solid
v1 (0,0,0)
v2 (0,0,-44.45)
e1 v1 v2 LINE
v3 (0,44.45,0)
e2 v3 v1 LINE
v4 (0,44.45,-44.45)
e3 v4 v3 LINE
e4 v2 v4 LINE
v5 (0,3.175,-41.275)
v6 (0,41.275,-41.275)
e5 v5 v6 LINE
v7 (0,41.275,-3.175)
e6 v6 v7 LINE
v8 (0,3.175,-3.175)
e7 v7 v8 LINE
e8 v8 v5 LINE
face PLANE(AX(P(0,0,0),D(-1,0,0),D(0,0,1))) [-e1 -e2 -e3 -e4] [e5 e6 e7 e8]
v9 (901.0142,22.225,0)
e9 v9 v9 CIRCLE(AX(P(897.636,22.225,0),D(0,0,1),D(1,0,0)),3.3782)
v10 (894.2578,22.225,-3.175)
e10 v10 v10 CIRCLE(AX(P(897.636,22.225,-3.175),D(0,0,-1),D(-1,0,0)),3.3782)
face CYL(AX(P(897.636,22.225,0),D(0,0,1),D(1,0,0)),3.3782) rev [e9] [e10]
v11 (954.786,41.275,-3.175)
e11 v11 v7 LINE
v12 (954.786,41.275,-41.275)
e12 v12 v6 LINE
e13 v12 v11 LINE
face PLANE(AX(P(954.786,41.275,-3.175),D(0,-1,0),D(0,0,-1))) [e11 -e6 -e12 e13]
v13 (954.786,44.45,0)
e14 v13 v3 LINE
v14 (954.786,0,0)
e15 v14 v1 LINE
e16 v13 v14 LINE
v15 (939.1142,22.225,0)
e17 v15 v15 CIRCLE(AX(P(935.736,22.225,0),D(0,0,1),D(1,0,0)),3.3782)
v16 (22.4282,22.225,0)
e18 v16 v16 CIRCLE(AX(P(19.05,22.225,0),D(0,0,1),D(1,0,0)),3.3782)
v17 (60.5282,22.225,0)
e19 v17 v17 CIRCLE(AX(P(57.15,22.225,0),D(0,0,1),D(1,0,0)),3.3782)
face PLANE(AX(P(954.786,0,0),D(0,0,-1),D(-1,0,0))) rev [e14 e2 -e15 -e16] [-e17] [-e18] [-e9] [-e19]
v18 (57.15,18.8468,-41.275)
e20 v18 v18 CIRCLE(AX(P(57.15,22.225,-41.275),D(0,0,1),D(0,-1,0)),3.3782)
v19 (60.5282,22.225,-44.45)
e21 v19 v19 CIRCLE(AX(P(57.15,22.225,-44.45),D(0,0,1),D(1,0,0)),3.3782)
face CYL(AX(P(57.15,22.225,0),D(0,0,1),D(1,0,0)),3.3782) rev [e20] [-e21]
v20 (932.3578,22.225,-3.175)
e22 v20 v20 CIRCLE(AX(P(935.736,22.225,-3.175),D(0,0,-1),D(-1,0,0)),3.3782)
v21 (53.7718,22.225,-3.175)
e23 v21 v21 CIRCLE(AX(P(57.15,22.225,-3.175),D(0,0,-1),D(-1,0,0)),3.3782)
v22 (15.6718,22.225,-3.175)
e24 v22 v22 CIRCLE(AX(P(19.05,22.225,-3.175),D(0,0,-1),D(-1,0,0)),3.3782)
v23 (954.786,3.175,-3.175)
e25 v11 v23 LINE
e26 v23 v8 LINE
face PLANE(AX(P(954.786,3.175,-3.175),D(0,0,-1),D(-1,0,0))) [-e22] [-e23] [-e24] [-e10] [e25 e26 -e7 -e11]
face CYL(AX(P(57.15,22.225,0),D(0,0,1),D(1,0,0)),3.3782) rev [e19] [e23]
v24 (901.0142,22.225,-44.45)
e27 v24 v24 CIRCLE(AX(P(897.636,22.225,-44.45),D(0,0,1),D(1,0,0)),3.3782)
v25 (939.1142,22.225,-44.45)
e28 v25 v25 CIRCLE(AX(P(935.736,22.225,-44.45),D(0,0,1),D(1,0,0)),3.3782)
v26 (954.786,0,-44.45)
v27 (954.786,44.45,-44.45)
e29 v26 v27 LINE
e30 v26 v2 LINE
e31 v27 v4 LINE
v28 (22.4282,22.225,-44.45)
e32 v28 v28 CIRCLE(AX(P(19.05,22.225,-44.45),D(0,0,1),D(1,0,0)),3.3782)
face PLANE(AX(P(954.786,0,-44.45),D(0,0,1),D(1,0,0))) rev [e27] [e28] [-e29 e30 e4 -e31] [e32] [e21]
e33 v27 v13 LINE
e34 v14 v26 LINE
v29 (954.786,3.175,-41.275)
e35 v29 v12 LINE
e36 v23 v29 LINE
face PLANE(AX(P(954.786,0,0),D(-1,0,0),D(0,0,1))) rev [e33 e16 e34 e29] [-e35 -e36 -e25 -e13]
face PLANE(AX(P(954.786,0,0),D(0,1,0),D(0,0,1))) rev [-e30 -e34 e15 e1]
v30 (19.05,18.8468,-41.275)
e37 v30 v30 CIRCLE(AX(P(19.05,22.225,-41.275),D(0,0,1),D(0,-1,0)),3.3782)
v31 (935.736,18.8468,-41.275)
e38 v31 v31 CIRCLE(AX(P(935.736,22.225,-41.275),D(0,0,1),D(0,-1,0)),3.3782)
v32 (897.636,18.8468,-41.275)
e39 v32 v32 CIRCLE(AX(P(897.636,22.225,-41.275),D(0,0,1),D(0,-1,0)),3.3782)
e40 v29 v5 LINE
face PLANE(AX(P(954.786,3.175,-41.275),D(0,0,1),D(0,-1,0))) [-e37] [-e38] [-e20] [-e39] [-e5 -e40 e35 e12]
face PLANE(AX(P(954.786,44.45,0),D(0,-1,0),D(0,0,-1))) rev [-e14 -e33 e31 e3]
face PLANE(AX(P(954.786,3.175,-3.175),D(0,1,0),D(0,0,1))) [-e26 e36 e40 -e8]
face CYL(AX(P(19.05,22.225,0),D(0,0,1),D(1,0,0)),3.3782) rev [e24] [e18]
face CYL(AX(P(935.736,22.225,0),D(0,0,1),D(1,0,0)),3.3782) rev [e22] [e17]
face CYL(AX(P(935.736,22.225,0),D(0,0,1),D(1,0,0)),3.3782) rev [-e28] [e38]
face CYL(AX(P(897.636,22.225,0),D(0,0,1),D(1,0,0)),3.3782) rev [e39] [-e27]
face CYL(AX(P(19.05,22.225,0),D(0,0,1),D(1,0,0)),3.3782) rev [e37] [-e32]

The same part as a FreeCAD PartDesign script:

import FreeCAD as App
import Part
import Sketcher
Q = App.Units.Quantity

doc = App.newDocument("Part")
body = doc.addObject("PartDesign::Body", "Body")

sketch1 = body.newObject("Sketcher::SketchObject", "Sketch")
sketch1.AttachmentSupport = (doc.getObject("YZ_Plane"), [""])
sketch1.MapMode = "FlatFace"
sketch1.addGeometry([
    Part.LineSegment(App.Vector(44, 0, 0), App.Vector(0, 0, 0)),
    Part.LineSegment(App.Vector(0, 0, 0), App.Vector(0, -44, 0)),
    Part.LineSegment(App.Vector(0, -44, 0), App.Vector(44, -44, 0)),
    Part.LineSegment(App.Vector(44, -44, 0), App.Vector(44, 0, 0)),
    Part.LineSegment(App.Vector(3, -41, 0), App.Vector(3, -3, 0)),
    Part.LineSegment(App.Vector(3, -3, 0), App.Vector(41, -3, 0)),
    Part.LineSegment(App.Vector(41, -3, 0), App.Vector(41, -41, 0)),
    Part.LineSegment(App.Vector(41, -41, 0), App.Vector(3, -41, 0)),
], False)
sketch1.addConstraint([
    Sketcher.Constraint("Coincident", 0, 2, 1, 1),
    Sketcher.Constraint("Coincident", 1, 2, 2, 1),
    Sketcher.Constraint("Coincident", 2, 2, 3, 1),
    Sketcher.Constraint("Coincident", 3, 2, 0, 1),
    Sketcher.Constraint("Coincident", 4, 2, 5, 1),
    Sketcher.Constraint("Coincident", 5, 2, 6, 1),
    Sketcher.Constraint("Coincident", 6, 2, 7, 1),
    Sketcher.Constraint("Coincident", 7, 2, 4, 1),
    Sketcher.Constraint("Horizontal", 0),
    Sketcher.Constraint("Vertical", 1),
    Sketcher.Constraint("Horizontal", 2),
    Sketcher.Constraint("Vertical", 3),
    Sketcher.Constraint("Vertical", 4),
    Sketcher.Constraint("Horizontal", 5),
    Sketcher.Constraint("Vertical", 6),
    Sketcher.Constraint("Horizontal", 7),
    Sketcher.Constraint("Coincident", 0, 2, -1, 1),
    Sketcher.Constraint("Equal", 2, 1),
    Sketcher.Constraint("Equal", 7, 4),
    Sketcher.Constraint("DistanceX", 5, 1, 5, 2, Q("1.5 in")),
    Sketcher.Constraint("DistanceX", 0, 2, 0, 1, Q("1.75 in")),
    Sketcher.Constraint("DistanceX", -1, 1, 4, 2, Q("0.125 in")),
    Sketcher.Constraint("DistanceY", 4, 2, -1, 1, Q("0.125 in")),
])
pad1 = body.newObject("PartDesign::Pad", "Pad")
pad1.Profile = sketch1
pad1.Length = Q("37.59 in")

sketch2 = body.newObject("Sketcher::SketchObject", "Sketch001")
sketch2.AttachmentSupport = (doc.getObject("XY_Plane"), [""])
sketch2.MapMode = "FlatFace"
sketch2.addGeometry([
    Part.Circle(App.Vector(19.1, 22.2, 0), App.Vector(0, 0, 1), 3.4),
    Part.Circle(App.Vector(57.1, 22.2, 0), App.Vector(0, 0, 1), 3.4),
    Part.Circle(App.Vector(935.7, 22.2, 0), App.Vector(0, 0, 1), 3.4),
    Part.Circle(App.Vector(897.6, 22.2, 0), App.Vector(0, 0, 1), 3.4),
], False)
sketch2.addConstraint([
    Sketcher.Constraint("Equal", 0, 1),
    Sketcher.Constraint("Equal", 1, 2),
    Sketcher.Constraint("Equal", 2, 3),
    Sketcher.Constraint("Horizontal", 0, 3, 1, 3),
    Sketcher.Constraint("Horizontal", 1, 3, 2, 3),
    Sketcher.Constraint("Horizontal", 2, 3, 3, 3),
    Sketcher.Constraint("Diameter", 0, Q("0.266 in")),
    Sketcher.Constraint("DistanceX", 0, 3, 1, 3, Q("1.5 in")),
    Sketcher.Constraint("DistanceX", 3, 3, 2, 3, Q("1.5 in")),
    Sketcher.Constraint("DistanceX", -1, 1, 0, 3, Q("0.75 in")),
    Sketcher.Constraint("DistanceX", -1, 1, 2, 3, Q("36.84 in")),
    Sketcher.Constraint("DistanceY", -1, 1, 0, 3, Q("0.875 in")),
])
doc.recompute()
hole = body.newObject("PartDesign::Hole", "Hole")
hole.Profile = sketch2
hole.ThreadType = "None"
hole.Diameter = Q("0.266 in")
hole.DepthType = "ThroughAll"

doc.recompute()
